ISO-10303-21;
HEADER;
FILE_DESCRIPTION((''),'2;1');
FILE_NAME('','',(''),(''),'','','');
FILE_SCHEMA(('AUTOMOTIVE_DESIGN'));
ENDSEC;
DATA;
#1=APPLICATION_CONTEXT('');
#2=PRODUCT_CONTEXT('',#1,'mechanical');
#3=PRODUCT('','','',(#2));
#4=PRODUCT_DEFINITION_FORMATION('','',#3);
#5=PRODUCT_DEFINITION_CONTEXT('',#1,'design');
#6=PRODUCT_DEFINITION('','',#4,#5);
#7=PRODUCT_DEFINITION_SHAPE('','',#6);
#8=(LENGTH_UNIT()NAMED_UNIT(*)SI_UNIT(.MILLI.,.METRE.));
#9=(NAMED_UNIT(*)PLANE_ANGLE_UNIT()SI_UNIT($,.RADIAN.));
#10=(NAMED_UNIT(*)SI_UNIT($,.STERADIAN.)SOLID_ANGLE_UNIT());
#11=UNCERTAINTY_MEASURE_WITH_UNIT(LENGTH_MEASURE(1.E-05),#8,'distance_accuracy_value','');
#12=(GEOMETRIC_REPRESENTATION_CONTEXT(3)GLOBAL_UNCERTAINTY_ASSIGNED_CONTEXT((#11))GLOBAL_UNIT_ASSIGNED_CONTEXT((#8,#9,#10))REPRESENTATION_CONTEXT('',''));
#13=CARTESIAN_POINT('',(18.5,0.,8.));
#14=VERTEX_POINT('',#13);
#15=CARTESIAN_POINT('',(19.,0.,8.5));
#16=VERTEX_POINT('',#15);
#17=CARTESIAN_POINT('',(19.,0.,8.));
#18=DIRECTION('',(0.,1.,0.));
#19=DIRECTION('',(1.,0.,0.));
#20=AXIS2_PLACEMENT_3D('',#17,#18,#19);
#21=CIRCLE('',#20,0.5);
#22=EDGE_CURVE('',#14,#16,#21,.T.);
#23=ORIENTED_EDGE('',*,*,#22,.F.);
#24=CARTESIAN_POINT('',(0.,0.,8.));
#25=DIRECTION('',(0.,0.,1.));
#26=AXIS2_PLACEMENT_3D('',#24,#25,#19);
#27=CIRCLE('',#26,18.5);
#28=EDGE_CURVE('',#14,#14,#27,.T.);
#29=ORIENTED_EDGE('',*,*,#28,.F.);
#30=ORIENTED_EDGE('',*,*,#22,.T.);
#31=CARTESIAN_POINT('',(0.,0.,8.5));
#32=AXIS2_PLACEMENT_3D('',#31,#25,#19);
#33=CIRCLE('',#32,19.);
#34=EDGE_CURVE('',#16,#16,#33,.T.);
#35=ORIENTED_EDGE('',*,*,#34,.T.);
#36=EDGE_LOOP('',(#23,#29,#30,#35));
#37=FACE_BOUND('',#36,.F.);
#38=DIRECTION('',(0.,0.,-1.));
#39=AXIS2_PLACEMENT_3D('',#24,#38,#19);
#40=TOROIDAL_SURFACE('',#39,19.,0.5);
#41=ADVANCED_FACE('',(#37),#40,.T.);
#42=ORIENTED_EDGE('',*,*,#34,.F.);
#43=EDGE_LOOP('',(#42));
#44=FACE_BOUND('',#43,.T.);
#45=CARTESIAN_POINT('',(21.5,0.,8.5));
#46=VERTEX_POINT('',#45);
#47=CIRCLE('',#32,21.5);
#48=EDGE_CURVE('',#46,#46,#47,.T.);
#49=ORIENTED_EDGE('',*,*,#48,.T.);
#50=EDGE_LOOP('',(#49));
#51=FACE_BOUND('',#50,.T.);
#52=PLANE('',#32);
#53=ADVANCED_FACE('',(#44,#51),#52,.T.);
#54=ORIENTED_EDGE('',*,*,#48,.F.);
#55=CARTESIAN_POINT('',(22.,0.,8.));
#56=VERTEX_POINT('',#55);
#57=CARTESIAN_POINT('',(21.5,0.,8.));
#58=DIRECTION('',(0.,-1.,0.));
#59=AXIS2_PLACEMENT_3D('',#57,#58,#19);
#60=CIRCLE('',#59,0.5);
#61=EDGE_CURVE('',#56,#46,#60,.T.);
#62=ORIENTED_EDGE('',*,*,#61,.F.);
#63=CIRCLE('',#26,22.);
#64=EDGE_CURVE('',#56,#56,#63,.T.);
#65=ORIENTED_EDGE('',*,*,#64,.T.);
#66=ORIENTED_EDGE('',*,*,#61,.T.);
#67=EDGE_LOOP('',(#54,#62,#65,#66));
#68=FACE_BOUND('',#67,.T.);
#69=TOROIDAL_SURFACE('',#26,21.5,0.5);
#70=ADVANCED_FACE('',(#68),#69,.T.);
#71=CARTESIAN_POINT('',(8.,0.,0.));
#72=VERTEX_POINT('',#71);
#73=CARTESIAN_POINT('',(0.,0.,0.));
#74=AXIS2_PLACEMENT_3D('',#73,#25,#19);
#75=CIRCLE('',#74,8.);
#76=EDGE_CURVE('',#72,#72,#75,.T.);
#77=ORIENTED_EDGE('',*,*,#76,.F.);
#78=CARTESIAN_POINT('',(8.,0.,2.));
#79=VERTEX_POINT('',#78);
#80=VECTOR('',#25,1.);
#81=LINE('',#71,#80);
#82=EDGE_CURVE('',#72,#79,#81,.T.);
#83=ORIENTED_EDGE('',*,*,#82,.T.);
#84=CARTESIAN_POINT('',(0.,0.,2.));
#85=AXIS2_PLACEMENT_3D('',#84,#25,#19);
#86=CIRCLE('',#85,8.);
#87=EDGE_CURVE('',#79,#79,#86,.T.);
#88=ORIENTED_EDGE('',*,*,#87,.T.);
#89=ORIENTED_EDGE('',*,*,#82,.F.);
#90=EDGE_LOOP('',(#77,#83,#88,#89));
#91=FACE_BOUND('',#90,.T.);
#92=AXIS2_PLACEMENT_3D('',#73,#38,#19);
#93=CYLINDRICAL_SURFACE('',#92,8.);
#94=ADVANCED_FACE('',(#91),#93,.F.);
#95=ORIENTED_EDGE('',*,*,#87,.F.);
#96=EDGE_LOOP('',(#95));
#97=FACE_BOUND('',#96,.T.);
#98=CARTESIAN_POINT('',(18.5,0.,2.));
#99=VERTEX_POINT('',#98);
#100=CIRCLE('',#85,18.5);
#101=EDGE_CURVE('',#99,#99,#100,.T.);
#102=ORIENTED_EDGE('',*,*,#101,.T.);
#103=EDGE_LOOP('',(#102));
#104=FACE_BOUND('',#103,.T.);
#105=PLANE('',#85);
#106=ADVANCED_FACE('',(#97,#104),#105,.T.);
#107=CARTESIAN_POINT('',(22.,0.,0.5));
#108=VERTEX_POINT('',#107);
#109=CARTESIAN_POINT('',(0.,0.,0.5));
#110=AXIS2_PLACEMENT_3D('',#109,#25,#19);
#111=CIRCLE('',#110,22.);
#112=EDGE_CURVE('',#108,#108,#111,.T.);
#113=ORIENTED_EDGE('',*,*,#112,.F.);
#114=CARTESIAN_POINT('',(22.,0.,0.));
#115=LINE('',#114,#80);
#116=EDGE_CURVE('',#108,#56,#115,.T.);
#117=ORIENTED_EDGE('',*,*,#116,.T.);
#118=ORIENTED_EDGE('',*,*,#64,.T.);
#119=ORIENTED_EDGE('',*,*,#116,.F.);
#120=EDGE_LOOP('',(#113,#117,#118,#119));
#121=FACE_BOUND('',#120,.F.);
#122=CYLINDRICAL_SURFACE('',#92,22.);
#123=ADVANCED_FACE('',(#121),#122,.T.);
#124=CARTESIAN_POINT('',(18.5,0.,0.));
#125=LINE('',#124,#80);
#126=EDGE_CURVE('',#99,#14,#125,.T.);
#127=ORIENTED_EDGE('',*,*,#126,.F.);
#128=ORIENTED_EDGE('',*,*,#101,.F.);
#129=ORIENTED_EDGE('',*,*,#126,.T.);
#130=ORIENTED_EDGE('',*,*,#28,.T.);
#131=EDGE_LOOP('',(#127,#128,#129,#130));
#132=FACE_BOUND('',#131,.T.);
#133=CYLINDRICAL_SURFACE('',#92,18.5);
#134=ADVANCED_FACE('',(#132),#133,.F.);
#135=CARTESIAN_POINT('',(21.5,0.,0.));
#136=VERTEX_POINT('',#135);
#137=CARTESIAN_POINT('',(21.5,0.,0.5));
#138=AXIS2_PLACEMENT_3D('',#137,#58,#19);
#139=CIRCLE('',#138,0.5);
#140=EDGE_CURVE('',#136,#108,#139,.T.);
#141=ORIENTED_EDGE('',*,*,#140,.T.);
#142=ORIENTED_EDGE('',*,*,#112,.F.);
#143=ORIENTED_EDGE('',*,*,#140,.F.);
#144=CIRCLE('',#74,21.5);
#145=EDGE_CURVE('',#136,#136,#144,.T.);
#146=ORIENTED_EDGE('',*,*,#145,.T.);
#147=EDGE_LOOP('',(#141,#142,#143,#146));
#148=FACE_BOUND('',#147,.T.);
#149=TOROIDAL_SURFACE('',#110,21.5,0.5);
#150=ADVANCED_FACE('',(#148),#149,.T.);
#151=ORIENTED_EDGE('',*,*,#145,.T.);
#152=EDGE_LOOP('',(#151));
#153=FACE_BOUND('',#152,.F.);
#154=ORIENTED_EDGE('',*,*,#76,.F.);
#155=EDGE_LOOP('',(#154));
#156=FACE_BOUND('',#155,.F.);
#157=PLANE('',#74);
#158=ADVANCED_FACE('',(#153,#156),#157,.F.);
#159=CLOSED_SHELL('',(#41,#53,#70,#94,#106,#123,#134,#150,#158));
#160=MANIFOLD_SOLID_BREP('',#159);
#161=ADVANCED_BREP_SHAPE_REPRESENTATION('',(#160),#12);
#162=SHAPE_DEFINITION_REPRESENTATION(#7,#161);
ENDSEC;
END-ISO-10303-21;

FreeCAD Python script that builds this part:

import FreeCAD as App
import Part
import Sketcher
from FreeCAD import Vector


def edges_at(feature, points):
    """Names of the edges that pass closest to the given points."""
    edges = feature.Shape.Edges
    near = lambda p: min(range(len(edges)), key=lambda i: edges[i].distToShape(Part.Vertex(*p))[0])
    return sorted({f"Edge{near(p) + 1}" for p in points})

doc = App.newDocument("Part")
params = doc.addObject("Spreadsheet::Sheet", "Params")
for row, (alias, value) in enumerate([
    ("sketch1_diameter", "44 mm"),
    ("sketch1_diameter2", "37 mm"),
    ("pad1_length", "8.5 mm"),
    ("sketch2_diameter", "37 mm"),
    ("sketch2_diameter2", "16 mm"),
    ("pad2_length", "2 mm"),
    ("fillet_radius", "0.5 mm"),
], start=1):
    params.set(f"A{row}", alias)
    params.set(f"B{row}", "=" + value)
    params.setAlias(f"B{row}", alias)

body = doc.addObject("PartDesign::Body", "Body")

sketch1 = body.newObject("Sketcher::SketchObject", "Sketch")
sketch1.AttachmentSupport = (doc.getObject("XY_Plane"), [""])
sketch1.MapMode = "FlatFace"
sketch1.addGeometry(Part.Circle(Vector(0, 0, 0), Vector(0, 0, 1), 22), False)
sketch1.addGeometry(Part.Circle(Vector(0, 0, 0), Vector(0, 0, 1), 18), False)
sketch1.addConstraint(Sketcher.Constraint("Coincident", 0, 3, -1, 1))
sketch1.addConstraint(Sketcher.Constraint("Coincident", 1, 3, -1, 1))
sketch1.addConstraint(Sketcher.Constraint("Diameter", 0, 44.0))
sketch1.addConstraint(Sketcher.Constraint("Diameter", 1, 37.0))
sketch1.setExpression("Constraints[2]", "Params.sketch1_diameter")
sketch1.setExpression("Constraints[3]", "Params.sketch1_diameter2")
pad1 = body.newObject("PartDesign::Pad", "Pad")
pad1.Profile = sketch1
pad1.setExpression("Length", "Params.pad1_length")

sketch2 = body.newObject("Sketcher::SketchObject", "Sketch001")
sketch2.AttachmentSupport = (doc.getObject("XY_Plane"), [""])
sketch2.MapMode = "FlatFace"
sketch2.addGeometry(Part.Circle(Vector(0, 0, 0), Vector(0, 0, 1), 18), False)
sketch2.addGeometry(Part.Circle(Vector(0, 0, 0), Vector(0, 0, 1), 8), False)
sketch2.addConstraint(Sketcher.Constraint("Coincident", 0, 3, -1, 1))
sketch2.addConstraint(Sketcher.Constraint("Coincident", 1, 3, -1, 1))
sketch2.addConstraint(Sketcher.Constraint("Diameter", 0, 37.0))
sketch2.addConstraint(Sketcher.Constraint("Diameter", 1, 16.0))
sketch2.setExpression("Constraints[2]", "Params.sketch2_diameter")
sketch2.setExpression("Constraints[3]", "Params.sketch2_diameter2")
pad2 = body.newObject("PartDesign::Pad", "Pad001")
pad2.Profile = sketch2
pad2.setExpression("Length", "Params.pad2_length")
doc.recompute()

fillet = body.newObject("PartDesign::Fillet", "Fillet")
fillet.Base = (pad2, edges_at(pad2, [(-22, 0, 8.5), (-22, 0, 0), (-18.5, 0, 8.5)]))
fillet.setExpression("Radius", "Params.fillet_radius")

doc.recompute()
